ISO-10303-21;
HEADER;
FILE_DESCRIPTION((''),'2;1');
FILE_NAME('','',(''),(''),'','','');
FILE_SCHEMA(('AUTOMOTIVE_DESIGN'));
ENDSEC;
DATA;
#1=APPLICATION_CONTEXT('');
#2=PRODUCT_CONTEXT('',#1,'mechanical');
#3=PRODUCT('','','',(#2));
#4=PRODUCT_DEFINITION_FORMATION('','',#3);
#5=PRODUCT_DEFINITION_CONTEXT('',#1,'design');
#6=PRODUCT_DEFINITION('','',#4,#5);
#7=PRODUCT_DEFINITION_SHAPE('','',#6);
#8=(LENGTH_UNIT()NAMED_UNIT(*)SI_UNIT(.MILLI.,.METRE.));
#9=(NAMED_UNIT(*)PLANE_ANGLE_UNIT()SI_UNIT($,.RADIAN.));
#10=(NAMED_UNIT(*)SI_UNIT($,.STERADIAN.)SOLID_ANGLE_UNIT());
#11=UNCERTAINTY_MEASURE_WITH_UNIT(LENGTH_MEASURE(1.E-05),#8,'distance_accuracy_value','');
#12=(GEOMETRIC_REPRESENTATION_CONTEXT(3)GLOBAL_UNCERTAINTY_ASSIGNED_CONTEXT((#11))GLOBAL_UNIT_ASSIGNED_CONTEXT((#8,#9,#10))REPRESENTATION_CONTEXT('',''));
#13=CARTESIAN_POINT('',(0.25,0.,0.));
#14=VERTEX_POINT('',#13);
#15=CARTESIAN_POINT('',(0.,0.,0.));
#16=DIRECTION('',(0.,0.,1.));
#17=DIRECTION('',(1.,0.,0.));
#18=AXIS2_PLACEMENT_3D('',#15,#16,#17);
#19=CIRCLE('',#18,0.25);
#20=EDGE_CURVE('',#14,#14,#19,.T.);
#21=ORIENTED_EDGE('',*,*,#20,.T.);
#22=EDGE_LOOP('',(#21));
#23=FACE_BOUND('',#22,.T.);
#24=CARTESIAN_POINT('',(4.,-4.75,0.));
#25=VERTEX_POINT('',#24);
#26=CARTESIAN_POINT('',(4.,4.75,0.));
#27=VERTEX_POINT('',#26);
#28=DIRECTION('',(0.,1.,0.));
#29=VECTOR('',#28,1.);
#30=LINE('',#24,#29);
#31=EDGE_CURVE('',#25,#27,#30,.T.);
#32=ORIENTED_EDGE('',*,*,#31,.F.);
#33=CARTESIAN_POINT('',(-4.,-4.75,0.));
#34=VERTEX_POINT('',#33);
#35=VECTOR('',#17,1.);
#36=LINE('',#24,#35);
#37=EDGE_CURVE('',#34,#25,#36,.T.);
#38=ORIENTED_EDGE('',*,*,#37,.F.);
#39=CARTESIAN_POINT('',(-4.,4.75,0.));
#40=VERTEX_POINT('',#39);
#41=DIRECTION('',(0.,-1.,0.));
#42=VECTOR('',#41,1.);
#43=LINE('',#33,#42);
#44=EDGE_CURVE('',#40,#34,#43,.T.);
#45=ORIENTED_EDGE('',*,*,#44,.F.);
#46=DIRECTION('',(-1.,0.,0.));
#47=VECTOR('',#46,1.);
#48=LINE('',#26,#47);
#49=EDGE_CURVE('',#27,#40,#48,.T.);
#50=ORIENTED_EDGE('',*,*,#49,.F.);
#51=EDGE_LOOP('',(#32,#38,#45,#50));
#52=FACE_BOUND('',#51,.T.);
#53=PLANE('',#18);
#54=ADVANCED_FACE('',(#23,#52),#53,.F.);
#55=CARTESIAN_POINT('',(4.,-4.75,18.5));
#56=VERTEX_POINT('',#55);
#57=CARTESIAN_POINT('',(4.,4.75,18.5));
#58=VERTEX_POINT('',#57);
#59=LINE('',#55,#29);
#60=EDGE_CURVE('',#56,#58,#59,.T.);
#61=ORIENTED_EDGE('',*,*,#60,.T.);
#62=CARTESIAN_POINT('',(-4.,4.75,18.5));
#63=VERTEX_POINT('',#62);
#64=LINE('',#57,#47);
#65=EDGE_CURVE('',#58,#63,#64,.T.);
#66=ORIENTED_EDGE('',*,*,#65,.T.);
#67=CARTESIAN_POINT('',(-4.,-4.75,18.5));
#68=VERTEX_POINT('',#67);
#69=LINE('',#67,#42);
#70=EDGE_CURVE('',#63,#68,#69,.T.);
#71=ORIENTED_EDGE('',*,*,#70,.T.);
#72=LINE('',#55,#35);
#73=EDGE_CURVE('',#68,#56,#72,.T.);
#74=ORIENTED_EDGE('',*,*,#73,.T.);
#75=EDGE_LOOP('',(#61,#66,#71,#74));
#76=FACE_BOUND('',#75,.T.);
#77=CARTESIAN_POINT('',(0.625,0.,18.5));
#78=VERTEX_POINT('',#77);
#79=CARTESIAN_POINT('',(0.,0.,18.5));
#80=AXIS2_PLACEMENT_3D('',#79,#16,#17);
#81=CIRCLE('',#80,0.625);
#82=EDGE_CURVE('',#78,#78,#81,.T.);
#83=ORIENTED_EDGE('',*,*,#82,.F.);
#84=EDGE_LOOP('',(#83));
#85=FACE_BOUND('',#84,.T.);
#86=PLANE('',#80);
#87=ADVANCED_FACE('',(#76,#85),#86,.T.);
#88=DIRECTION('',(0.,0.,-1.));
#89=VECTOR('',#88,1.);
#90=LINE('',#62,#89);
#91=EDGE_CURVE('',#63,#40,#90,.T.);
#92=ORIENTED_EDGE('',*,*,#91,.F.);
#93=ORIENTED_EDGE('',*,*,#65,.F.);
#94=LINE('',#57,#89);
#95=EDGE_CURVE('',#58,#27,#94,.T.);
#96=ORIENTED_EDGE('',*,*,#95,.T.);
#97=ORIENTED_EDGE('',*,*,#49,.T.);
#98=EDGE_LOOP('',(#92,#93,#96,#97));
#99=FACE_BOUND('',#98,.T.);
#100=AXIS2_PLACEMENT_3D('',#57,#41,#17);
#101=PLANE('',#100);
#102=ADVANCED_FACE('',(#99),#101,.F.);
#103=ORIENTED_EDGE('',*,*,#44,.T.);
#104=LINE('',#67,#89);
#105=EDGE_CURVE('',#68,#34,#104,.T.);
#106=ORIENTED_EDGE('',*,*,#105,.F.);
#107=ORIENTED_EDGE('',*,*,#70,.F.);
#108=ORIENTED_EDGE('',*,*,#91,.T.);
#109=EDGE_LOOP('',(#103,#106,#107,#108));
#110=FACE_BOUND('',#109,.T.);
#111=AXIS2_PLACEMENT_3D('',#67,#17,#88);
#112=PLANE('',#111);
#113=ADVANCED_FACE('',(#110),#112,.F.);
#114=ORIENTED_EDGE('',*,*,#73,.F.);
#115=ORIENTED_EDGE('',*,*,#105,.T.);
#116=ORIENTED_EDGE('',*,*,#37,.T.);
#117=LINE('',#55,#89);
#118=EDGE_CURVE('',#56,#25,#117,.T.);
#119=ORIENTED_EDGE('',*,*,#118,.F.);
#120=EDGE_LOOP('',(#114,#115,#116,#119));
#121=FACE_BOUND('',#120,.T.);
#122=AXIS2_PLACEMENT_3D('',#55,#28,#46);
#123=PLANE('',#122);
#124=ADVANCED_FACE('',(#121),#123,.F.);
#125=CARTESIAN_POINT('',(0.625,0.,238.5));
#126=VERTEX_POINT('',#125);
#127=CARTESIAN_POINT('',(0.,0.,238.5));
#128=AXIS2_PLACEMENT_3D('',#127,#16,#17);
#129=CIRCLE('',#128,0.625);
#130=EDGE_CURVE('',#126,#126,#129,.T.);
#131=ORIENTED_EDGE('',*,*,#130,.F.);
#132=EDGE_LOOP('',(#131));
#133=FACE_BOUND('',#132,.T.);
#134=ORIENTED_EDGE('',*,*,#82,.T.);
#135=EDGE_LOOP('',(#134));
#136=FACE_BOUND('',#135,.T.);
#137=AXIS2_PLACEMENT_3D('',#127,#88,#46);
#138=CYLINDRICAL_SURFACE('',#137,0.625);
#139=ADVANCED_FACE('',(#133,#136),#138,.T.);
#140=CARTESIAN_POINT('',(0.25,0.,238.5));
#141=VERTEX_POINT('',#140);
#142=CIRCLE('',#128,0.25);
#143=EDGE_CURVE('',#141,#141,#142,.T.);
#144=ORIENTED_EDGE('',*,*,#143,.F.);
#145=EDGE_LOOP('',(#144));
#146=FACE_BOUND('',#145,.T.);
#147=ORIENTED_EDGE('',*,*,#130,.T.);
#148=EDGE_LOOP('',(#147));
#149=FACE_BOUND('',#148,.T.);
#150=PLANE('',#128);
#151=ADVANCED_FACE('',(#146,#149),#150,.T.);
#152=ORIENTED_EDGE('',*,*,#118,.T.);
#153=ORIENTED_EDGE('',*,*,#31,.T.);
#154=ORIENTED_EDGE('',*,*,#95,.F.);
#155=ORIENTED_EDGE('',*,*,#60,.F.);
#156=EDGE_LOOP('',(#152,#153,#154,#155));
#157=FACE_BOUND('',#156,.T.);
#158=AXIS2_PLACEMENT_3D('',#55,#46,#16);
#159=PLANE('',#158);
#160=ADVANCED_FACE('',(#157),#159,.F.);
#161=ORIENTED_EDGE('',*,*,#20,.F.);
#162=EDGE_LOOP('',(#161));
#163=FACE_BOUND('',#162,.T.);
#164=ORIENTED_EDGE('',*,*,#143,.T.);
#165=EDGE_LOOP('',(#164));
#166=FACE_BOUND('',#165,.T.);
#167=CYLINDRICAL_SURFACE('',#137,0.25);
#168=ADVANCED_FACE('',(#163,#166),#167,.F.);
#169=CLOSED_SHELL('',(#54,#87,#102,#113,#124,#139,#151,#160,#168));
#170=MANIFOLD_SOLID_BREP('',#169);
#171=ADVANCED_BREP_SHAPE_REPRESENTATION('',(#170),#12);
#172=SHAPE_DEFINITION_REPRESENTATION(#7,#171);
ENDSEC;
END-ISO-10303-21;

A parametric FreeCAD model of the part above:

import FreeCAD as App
import Part
import Sketcher

V = App.Vector
Q = App.Units.Quantity

doc = App.newDocument("Part")
params = doc.addObject("Spreadsheet::Sheet", "Params")
for row, (alias, value) in enumerate([
    ("sketch1_width", "8 mm"),
    ("sketch1_height", "9.5 mm"),
    ("pad1_length", "18.5 mm"),
    ("sketch2_diameter", "0.5 mm"),
    ("sketch2_diameter2", "1.25 mm"),
    ("pad2_length", "220 mm"),
    ("sketch3_diameter", "0.5 mm"),
    ("pocket1_length", "230 mm"),
], start=1):
    params.set(f"A{row}", alias)
    params.set(f"B{row}", "=" + value)
    params.setAlias(f"B{row}", alias)

body = doc.addObject("PartDesign::Body", "Body")

# Sketch on XY plane
sketch1 = body.newObject("Sketcher::SketchObject", "Sketch")
sketch1.AttachmentSupport = (doc.getObject("XY_Plane"), [""])
sketch1.MapMode = "FlatFace"
sketch1.addGeometry([
    Part.LineSegment(V(-4, 5, 0), V(-4, -5, 0)),
    Part.LineSegment(V(-4, -5, 0), V(4, -5, 0)),
    Part.LineSegment(V(4, -5, 0), V(4, 5, 0)),
    Part.LineSegment(V(4, 5, 0), V(-4, 5, 0)),
], False)
sketch1.addConstraint([
    Sketcher.Constraint("Coincident", 0, 2, 1, 1),
    Sketcher.Constraint("Coincident", 1, 2, 2, 1),
    Sketcher.Constraint("Coincident", 2, 2, 3, 1),
    Sketcher.Constraint("Coincident", 3, 2, 0, 1),
    Sketcher.Constraint("Vertical", 0),
    Sketcher.Constraint("Horizontal", 1),
    Sketcher.Constraint("Vertical", 2),
    Sketcher.Constraint("Horizontal", 3),
    Sketcher.Constraint("Symmetric", 0, 2, 2, 2, -1, 1),
    Sketcher.Constraint("DistanceX", 1, 1, 1, 2, Q("8 mm")),
    Sketcher.Constraint("DistanceY", 0, 2, 0, 1, Q("9.5 mm")),
])
sketch1.setExpression("Constraints[9]", "Params.sketch1_width")
sketch1.setExpression("Constraints[10]", "Params.sketch1_height")
pad1 = body.newObject("PartDesign::Pad", "Pad")
pad1.Profile = sketch1
pad1.setExpression("Length", "Params.pad1_length")

# Sketch on XY plane
sketch2 = body.newObject("Sketcher::SketchObject", "Sketch001")
sketch2.AttachmentSupport = (doc.getObject("XY_Plane"), [""])
sketch2.MapMode = "FlatFace"
sketch2.AttachmentOffset = App.Placement(V(0, 0, 18.5), App.Rotation())
sketch2.addGeometry([
    Part.Circle(V(0, 0, 0), V(0, 0, 1), 0.62),
    Part.Circle(V(0, 0, 0), V(0, 0, 1), 0.25),
], False)
sketch2.addConstraint([
    Sketcher.Constraint("Coincident", 0, 3, -1, 1),
    Sketcher.Constraint("Coincident", 1, 3, -1, 1),
    Sketcher.Constraint("Diameter", 1, Q("0.5 mm")),
    Sketcher.Constraint("Diameter", 0, Q("1.25 mm")),
])
sketch2.setExpression("Constraints[2]", "Params.sketch2_diameter")
sketch2.setExpression("Constraints[3]", "Params.sketch2_diameter2")
pad2 = body.newObject("PartDesign::Pad", "Pad001")
pad2.Profile = sketch2
pad2.setExpression("Length", "Params.pad2_length")

# Sketch on XY plane
sketch3 = body.newObject("Sketcher::SketchObject", "Sketch002")
sketch3.AttachmentSupport = (doc.getObject("XY_Plane"), [""])
sketch3.MapMode = "FlatFace"
sketch3.AttachmentOffset = App.Placement(V(0, 0, -211.5), App.Rotation())
sketch3.addGeometry(Part.Circle(V(0, 0, 0), V(0, 0, 1), 0.25), False)
sketch3.addConstraint([
    Sketcher.Constraint("Coincident", 0, 3, -1, 1),
    Sketcher.Constraint("Diameter", 0, Q("0.5 mm")),
])
sketch3.setExpression("Constraints[1]", "Params.sketch3_diameter")
pocket1 = body.newObject("PartDesign::Pocket", "Pocket")
pocket1.Profile = sketch3
pocket1.setExpression("Length", "Params.pocket1_length")
pocket1.Reversed = True

doc.recompute()
